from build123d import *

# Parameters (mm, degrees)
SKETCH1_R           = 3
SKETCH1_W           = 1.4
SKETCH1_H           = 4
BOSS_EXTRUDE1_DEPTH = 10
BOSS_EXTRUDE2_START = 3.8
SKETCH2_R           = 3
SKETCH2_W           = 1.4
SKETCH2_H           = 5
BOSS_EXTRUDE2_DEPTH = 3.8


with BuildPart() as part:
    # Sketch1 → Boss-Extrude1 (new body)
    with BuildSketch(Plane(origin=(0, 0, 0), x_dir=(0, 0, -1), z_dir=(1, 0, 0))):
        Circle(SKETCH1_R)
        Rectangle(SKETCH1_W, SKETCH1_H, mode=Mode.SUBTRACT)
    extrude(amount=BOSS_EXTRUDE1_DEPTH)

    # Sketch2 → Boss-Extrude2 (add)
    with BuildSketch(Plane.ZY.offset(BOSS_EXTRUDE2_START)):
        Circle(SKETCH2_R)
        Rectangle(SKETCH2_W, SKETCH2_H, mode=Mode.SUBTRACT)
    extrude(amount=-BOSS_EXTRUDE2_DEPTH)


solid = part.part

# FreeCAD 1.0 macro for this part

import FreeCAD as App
import Part
import Sketcher

V = App.Vector
Q = App.Units.Quantity

doc = App.newDocument("Part")
params = doc.addObject("Spreadsheet::Sheet", "Params")
for row, (alias, value) in enumerate([
    ("sketch1_diameter", "6 mm"),
    ("sketch1_width", "4 mm"),
    ("sketch1_height", "1.4 mm"),
    ("pad1_length", "10 mm"),
    ("sketch2_diameter", "6 mm"),
    ("sketch2_width", "5 mm"),
    ("sketch2_height", "1.4 mm"),
    ("pad2_length", "3.8 mm"),
], start=1):
    params.set(f"A{row}", alias)
    params.set(f"B{row}", "=" + value)
    params.setAlias(f"B{row}", alias)

body = doc.addObject("PartDesign::Body", "Body")

sketch1 = doc.addObject("Sketcher::SketchObject", "Sketch")
body.addObject(sketch1)
sketch1.AttachmentSupport = (doc.YZ_Plane, [""])
sketch1.MapMode = "FlatFace"
sketch1.addGeometry([
    Part.Circle(V(0, 0, 0), V(0, 0, 1), 3),
    Part.LineSegment(V(-2, -0.7, 0), V(-2, 0.7, 0)),
    Part.LineSegment(V(-2, 0.7, 0), V(2, 0.7, 0)),
    Part.LineSegment(V(2, 0.7, 0), V(2, -0.7, 0)),
    Part.LineSegment(V(2, -0.7, 0), V(-2, -0.7, 0)),
], False)
sketch1.addConstraint([
    Sketcher.Constraint("Coincident", 1, 2, 2, 1),
    Sketcher.Constraint("Coincident", 2, 2, 3, 1),
    Sketcher.Constraint("Coincident", 3, 2, 4, 1),
    Sketcher.Constraint("Coincident", 4, 2, 1, 1),
    Sketcher.Constraint("Vertical", 1),
    Sketcher.Constraint("Horizontal", 2),
    Sketcher.Constraint("Vertical", 3),
    Sketcher.Constraint("Horizontal", 4),
    Sketcher.Constraint("Coincident", 0, 3, -1, 1),
    Sketcher.Constraint("Symmetric", 1, 2, 3, 2, -1, 1),
    Sketcher.Constraint("Diameter", 0, Q("6 mm")),
    Sketcher.Constraint("DistanceX", 2, 1, 2, 2, Q("4 mm")),
    Sketcher.Constraint("DistanceY", 1, 1, 1, 2, Q("1.4 mm")),
])
sketch1.setExpression("Constraints[10]", "Params.sketch1_diameter")
sketch1.setExpression("Constraints[11]", "Params.sketch1_width")
sketch1.setExpression("Constraints[12]", "Params.sketch1_height")
pad1 = doc.addObject("PartDesign::Pad", "Pad")
body.addObject(pad1)
pad1.Profile = sketch1
pad1.setExpression("Length", "Params.pad1_length")

sketch2 = doc.addObject("Sketcher::SketchObject", "Sketch001")
body.addObject(sketch2)
sketch2.AttachmentSupport = (doc.YZ_Plane, [""])
sketch2.MapMode = "FlatFace"
sketch2.AttachmentOffset = App.Placement(V(0, 0, -3.8), App.Rotation())
sketch2.addGeometry([
    Part.Circle(V(0, 0, 0), V(0, 0, 1), 3),
    Part.LineSegment(V(-2.5, 0.7, 0), V(-2.5, -0.7, 0)),
    Part.LineSegment(V(-2.5, -0.7, 0), V(2.5, -0.7, 0)),
    Part.LineSegment(V(2.5, -0.7, 0), V(2.5, 0.7, 0)),
    Part.LineSegment(V(2.5, 0.7, 0), V(-2.5, 0.7, 0)),
], False)
sketch2.addConstraint([
    Sketcher.Constraint("Coincident", 1, 2, 2, 1),
    Sketcher.Constraint("Coincident", 2, 2, 3, 1),
    Sketcher.Constraint("Coincident", 3, 2, 4, 1),
    Sketcher.Constraint("Coincident", 4, 2, 1, 1),
    Sketcher.Constraint("Vertical", 1),
    Sketcher.Constraint("Horizontal", 2),
    Sketcher.Constraint("Vertical", 3),
    Sketcher.Constraint("Horizontal", 4),
    Sketcher.Constraint("Coincident", 0, 3, -1, 1),
    Sketcher.Constraint("Symmetric", 1, 2, 3, 2, -1, 1),
    Sketcher.Constraint("Diameter", 0, Q("6 mm")),
    Sketcher.Constraint("DistanceX", 2, 1, 2, 2, Q("5 mm")),
    Sketcher.Constraint("DistanceY", 1, 2, 1, 1, Q("1.4 mm")),
])
sketch2.setExpression("Constraints[10]", "Params.sketch2_diameter")
sketch2.setExpression("Constraints[11]", "Params.sketch2_width")
sketch2.setExpression("Constraints[12]", "Params.sketch2_height")
pad2 = doc.addObject("PartDesign::Pad", "Pad001")
body.addObject(pad2)
pad2.Profile = sketch2
pad2.setExpression("Length", "Params.pad2_length")

doc.recompute()
